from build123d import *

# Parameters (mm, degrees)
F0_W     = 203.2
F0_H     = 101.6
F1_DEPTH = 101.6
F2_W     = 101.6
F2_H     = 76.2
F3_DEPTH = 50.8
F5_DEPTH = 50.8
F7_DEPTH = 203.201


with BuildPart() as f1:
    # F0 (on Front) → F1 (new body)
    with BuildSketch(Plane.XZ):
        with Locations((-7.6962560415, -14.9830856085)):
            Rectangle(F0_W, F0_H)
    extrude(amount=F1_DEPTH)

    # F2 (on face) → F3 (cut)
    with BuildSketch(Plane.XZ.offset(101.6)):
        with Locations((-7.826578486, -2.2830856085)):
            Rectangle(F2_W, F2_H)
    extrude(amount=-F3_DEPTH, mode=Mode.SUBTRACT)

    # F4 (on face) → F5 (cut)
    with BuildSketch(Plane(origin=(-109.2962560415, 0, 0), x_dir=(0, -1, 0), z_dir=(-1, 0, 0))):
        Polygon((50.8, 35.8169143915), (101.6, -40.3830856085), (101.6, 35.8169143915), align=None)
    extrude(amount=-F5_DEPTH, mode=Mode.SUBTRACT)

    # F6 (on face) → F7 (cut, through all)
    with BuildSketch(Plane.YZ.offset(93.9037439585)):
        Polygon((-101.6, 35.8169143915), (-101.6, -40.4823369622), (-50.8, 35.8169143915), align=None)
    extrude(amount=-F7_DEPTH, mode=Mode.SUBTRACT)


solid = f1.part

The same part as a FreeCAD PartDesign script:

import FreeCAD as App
import Part
import Sketcher
from FreeCAD import Vector
Q = App.Units.Quantity


def add_polygon(sketch, points):
    """Adds a closed chain of lines whose ends are joined by coincident constraints."""
    first, n = sketch.GeometryCount, len(points)
    for a, b in zip(points, points[1:] + points[:1]):
        sketch.addGeometry(Part.LineSegment(App.Vector(*a, 0), App.Vector(*b, 0)), False)
    for i in range(n):
        sketch.addConstraint(Sketcher.Constraint("Coincident", first + i, 2, first + (i + 1) % n, 1))

doc = App.newDocument("Part")
params = doc.addObject("Spreadsheet::Sheet", "Params")
for row, (alias, value) in enumerate([
    ("sketch1_width", "8 in"),
    ("sketch1_height", "4 in"),
    ("pad1_length", "4 in"),
    ("sketch2_width", "4 in"),
    ("sketch2_height", "3 in"),
    ("pocket1_length", "2 in"),
    ("sketch3_width", "2 in"),
    ("sketch3_height", "3 in"),
    ("pocket2_length", "2 in"),
    ("sketch4_width", "2 in"),
], start=1):
    params.set(f"A{row}", alias)
    params.set(f"B{row}", "=" + value)
    params.setAlias(f"B{row}", alias)

body = doc.addObject("PartDesign::Body", "Body")

sketch1 = doc.addObject("Sketcher::SketchObject", "Sketch")
body.addObject(sketch1)
sketch1.AttachmentSupport = (doc.XZ_Plane, [""])
sketch1.MapMode = "FlatFace"
add_polygon(sketch1, [(-109, 36), (-109, -66), (94, -66), (94, 36)])
sketch1.addConstraint([
    Sketcher.Constraint("Vertical", 0),
    Sketcher.Constraint("Horizontal", 1),
    Sketcher.Constraint("Vertical", 2),
    Sketcher.Constraint("Horizontal", 3),
    Sketcher.Constraint("DistanceX", 1, 1, 1, 2, Q("8 in")),
    Sketcher.Constraint("DistanceY", 0, 2, 0, 1, Q("4 in")),
    Sketcher.Constraint("DistanceX", 0, 2, -1, 1, Q("109.296256 mm")),
    Sketcher.Constraint("DistanceY", 0, 2, -1, 1, Q("65.783086 mm")),
])
sketch1.setExpression("Constraints[8]", "Params.sketch1_width")
sketch1.setExpression("Constraints[9]", "Params.sketch1_height")
pad1 = doc.addObject("PartDesign::Pad", "Pad")
body.addObject(pad1)
pad1.Profile = sketch1
pad1.setExpression("Length", "Params.pad1_length")

sketch2 = doc.addObject("Sketcher::SketchObject", "Sketch001")
body.addObject(sketch2)
sketch2.AttachmentSupport = (doc.XZ_Plane, [""])
sketch2.MapMode = "FlatFace"
sketch2.AttachmentOffset = App.Placement(Vector(0, 0, 4 * 25.4), App.Rotation())
add_polygon(sketch2, [(-59, 36), (-59, -40), (43, -40), (43, 36)])
sketch2.addConstraint([
    Sketcher.Constraint("Vertical", 0),
    Sketcher.Constraint("Horizontal", 1),
    Sketcher.Constraint("Vertical", 2),
    Sketcher.Constraint("Horizontal", 3),
    Sketcher.Constraint("DistanceX", 1, 1, 1, 2, Q("4 in")),
    Sketcher.Constraint("DistanceY", 0, 2, 0, 1, Q("3 in")),
    Sketcher.Constraint("DistanceX", 0, 2, -1, 1, Q("58.626578 mm")),
    Sketcher.Constraint("DistanceY", 0, 2, -1, 1, Q("40.383086 mm")),
])
sketch2.setExpression("Constraints[8]", "Params.sketch2_width")
sketch2.setExpression("Constraints[9]", "Params.sketch2_height")
pocket1 = doc.addObject("PartDesign::Pocket", "Pocket")
body.addObject(pocket1)
pocket1.Profile = sketch2
pocket1.setExpression("Length", "Params.pocket1_length")

sketch3 = doc.addObject("Sketcher::SketchObject", "Sketch002")
body.addObject(sketch3)
sketch3.AttachmentSupport = (doc.YZ_Plane, [""])
sketch3.MapMode = "FlatFace"
sketch3.AttachmentOffset = App.Placement(Vector(0, 0, -109.296256), App.Rotation())
add_polygon(sketch3, [(-51, 36), (-102, -40), (-102, 36)])
sketch3.addConstraint([
    Sketcher.Constraint("Vertical", 1),
    Sketcher.Constraint("Horizontal", 2),
    Sketcher.Constraint("DistanceX", 2, 1, 2, 2, Q("2 in")),
    Sketcher.Constraint("DistanceY", 1, 1, 1, 2, Q("3 in")),
    Sketcher.Constraint("DistanceX", 0, 2, -1, 1, Q("4 in")),
    Sketcher.Constraint("DistanceY", 0, 2, -1, 1, Q("40.383086 mm")),
])
sketch3.setExpression("Constraints[5]", "Params.sketch3_width")
sketch3.setExpression("Constraints[6]", "Params.sketch3_height")
pocket2 = doc.addObject("PartDesign::Pocket", "Pocket001")
body.addObject(pocket2)
pocket2.Profile = sketch3
pocket2.setExpression("Length", "Params.pocket2_length")
pocket2.Reversed = True

sketch4 = doc.addObject("Sketcher::SketchObject", "Sketch003")
body.addObject(sketch4)
sketch4.AttachmentSupport = (doc.YZ_Plane, [""])
sketch4.MapMode = "FlatFace"
sketch4.AttachmentOffset = App.Placement(Vector(0, 0, 93.903744), App.Rotation())
add_polygon(sketch4, [(-102, 36), (-102, -40), (-51, 36)])
sketch4.addConstraint([
    Sketcher.Constraint("Vertical", 0),
    Sketcher.Constraint("Horizontal", 2),
    Sketcher.Constraint("DistanceX", 2, 2, 2, 1, Q("2 in")),
    Sketcher.Constraint("DistanceX", 0, 2, -1, 1, Q("4 in")),
    Sketcher.Constraint("Distance", 1, Q("91.663601 mm")),
    Sketcher.Constraint("DistanceY", 0, 2, -1, 1, Q("40.482337 mm")),
])
sketch4.setExpression("Constraints[5]", "Params.sketch4_width")
pocket3 = doc.addObject("PartDesign::Pocket", "Pocket002")
body.addObject(pocket3)
pocket3.Profile = sketch4
pocket3.Type = "ThroughAll"

doc.recompute()
